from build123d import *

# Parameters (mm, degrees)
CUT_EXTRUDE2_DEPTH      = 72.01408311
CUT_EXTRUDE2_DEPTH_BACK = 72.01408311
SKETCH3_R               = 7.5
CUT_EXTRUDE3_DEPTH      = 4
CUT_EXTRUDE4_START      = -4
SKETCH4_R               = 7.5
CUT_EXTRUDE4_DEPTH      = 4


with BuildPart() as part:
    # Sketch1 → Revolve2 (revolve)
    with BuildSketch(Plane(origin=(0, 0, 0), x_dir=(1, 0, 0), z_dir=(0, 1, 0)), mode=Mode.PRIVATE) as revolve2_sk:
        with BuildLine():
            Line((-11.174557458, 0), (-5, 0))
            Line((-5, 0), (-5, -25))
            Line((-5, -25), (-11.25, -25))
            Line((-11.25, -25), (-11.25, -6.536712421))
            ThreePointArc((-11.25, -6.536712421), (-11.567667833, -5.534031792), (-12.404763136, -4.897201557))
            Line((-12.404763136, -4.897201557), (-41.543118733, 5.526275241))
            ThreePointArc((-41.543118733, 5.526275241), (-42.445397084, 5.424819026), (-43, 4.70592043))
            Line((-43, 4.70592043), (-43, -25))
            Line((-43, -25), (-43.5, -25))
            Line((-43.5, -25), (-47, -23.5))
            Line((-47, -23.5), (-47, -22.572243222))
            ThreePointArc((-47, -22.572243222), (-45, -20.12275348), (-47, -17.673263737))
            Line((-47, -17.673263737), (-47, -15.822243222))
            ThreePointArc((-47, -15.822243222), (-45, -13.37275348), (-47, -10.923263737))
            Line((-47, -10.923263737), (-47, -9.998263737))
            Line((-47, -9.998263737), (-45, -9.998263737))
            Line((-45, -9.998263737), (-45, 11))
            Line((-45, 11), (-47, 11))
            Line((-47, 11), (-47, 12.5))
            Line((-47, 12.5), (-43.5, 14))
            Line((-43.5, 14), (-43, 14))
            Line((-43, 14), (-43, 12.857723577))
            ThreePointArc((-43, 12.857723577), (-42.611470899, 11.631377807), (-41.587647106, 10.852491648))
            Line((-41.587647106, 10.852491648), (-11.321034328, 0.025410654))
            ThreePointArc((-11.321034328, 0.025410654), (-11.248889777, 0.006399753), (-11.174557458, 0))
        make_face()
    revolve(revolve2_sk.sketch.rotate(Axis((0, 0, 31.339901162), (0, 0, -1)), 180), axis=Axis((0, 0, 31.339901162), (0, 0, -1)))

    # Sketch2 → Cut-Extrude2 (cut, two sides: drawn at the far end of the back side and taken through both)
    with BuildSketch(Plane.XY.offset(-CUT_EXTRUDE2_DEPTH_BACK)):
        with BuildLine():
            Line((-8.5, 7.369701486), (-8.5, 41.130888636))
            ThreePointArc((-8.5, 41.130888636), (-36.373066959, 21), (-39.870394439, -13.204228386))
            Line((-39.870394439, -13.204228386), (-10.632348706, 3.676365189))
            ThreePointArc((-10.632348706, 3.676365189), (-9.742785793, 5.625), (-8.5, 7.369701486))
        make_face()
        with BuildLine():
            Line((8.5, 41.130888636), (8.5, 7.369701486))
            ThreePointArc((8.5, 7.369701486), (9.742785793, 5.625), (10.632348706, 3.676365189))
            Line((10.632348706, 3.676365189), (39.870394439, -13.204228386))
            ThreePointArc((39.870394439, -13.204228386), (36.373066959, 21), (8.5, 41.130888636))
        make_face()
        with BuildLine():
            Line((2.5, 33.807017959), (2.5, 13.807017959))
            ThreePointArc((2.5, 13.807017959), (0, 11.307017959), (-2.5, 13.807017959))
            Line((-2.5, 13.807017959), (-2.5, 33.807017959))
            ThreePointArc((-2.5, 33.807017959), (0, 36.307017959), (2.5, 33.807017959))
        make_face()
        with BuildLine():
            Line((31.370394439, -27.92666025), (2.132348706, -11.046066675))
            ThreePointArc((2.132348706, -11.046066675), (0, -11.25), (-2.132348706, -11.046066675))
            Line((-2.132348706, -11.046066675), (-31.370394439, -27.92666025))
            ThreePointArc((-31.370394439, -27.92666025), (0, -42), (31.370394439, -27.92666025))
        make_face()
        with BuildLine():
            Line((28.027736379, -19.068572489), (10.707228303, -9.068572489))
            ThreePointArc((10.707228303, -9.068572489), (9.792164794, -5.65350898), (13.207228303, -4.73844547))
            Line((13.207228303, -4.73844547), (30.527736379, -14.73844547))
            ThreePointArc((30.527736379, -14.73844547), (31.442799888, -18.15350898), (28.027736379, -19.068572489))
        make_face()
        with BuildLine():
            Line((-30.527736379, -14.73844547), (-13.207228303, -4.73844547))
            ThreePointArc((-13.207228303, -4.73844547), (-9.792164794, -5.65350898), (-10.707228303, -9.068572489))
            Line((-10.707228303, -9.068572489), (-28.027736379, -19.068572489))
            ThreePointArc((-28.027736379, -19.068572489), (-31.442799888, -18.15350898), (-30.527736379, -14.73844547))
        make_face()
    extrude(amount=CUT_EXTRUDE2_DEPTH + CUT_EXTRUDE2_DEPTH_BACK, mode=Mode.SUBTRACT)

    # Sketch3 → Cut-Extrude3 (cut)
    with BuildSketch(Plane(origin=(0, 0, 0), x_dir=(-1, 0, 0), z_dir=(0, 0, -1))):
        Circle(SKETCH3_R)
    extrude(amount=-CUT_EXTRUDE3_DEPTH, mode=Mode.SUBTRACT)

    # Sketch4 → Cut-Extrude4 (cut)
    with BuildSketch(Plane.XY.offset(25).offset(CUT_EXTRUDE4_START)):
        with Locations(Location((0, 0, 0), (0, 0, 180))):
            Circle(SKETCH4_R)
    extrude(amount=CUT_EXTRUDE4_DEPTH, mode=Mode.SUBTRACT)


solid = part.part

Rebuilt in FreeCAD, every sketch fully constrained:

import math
import FreeCAD as App
import Part
import Sketcher
from FreeCAD import Vector
Q = App.Units.Quantity

doc = App.newDocument("Part")
body = doc.addObject("PartDesign::Body", "Body")

sketch1 = body.newObject("Sketcher::SketchObject", "Sketch")
sketch1.AttachmentSupport = (doc.getObject("XZ_Plane"), [""])
sketch1.MapMode = "FlatFace"
sketch1.addGeometry(Part.LineSegment(Vector(-5, 0, 0), Vector(-11.174557, 0, 0)), False)
sketch1.addGeometry(Part.ArcOfCircle(Part.Circle(Vector(-11.174557, -0.43488, 0), Vector(0, 0, 1), 0.43488), math.radians(90), math.radians(109.683328)), False)
sketch1.addGeometry(Part.LineSegment(Vector(-11.321034, -0.025411, 0), Vector(-41.587647, -10.852492, 0)), False)
sketch1.addGeometry(Part.ArcOfCircle(Part.Circle(Vector(-40.870328, -12.857724, 0), Vector(0, 0, 1), 2.129672), math.radians(109.683328), math.radians(180)), False)
sketch1.addGeometry(Part.LineSegment(Vector(-43, -12.857724, 0), Vector(-43, -14, 0)), False)
sketch1.addGeometry(Part.LineSegment(Vector(-43, -14, 0), Vector(-43.5, -14, 0)), False)
sketch1.addGeometry(Part.LineSegment(Vector(-43.5, -14, 0), Vector(-47, -12.5, 0)), False)
sketch1.addGeometry(Part.LineSegment(Vector(-47, -12.5, 0), Vector(-47, -11, 0)), False)
sketch1.addGeometry(Part.LineSegment(Vector(-47, -11, 0), Vector(-45, -11, 0)), False)
sketch1.addGeometry(Part.LineSegment(Vector(-45, -11, 0), Vector(-45, 9.998264, 0)), False)
sketch1.addGeometry(Part.LineSegment(Vector(-45, 9.998264, 0), Vector(-47, 9.998264, 0)), False)
sketch1.addGeometry(Part.LineSegment(Vector(-47, 9.998264, 0), Vector(-47, 10.923264, 0)), False)
sketch1.addGeometry(Part.ArcOfCircle(Part.Circle(Vector(-47.5, 13.372753, 0), Vector(0, 0, 1), 2.5), math.radians(-78.463041), math.radians(78.463041)), False)
sketch1.addGeometry(Part.LineSegment(Vector(-47, 15.822243, 0), Vector(-47, 17.673264, 0)), False)
sketch1.addGeometry(Part.ArcOfCircle(Part.Circle(Vector(-47.5, 20.122753, 0), Vector(0, 0, 1), 2.5), math.radians(-78.463041), math.radians(78.463041)), False)
sketch1.addGeometry(Part.LineSegment(Vector(-47, 22.572243, 0), Vector(-47, 23.5, 0)), False)
sketch1.addGeometry(Part.LineSegment(Vector(-47, 23.5, 0), Vector(-43.5, 25, 0)), False)
sketch1.addGeometry(Part.LineSegment(Vector(-43.5, 25, 0), Vector(-43, 25, 0)), False)
sketch1.addGeometry(Part.LineSegment(Vector(-43, 25, 0), Vector(-43, -4.70592, 0)), False)
sketch1.addGeometry(Part.ArcOfCircle(Part.Circle(Vector(-41.874563, -4.411065, 0), Vector(0, 0, 1), 1.163421), math.radians(-165.318948), math.radians(-73.447878)), False)
sketch1.addGeometry(Part.LineSegment(Vector(-41.543119, -5.526275, 0), Vector(-12.404763, 4.897202, 0)), False)
sketch1.addGeometry(Part.ArcOfCircle(Part.Circle(Vector(-12.991255, 6.536712, 0), Vector(0, 0, 1), 1.741255), math.radians(-70.316672), math.radians(0)), False)
sketch1.addGeometry(Part.LineSegment(Vector(-11.25, 6.536712, 0), Vector(-11.25, 25, 0)), False)
sketch1.addGeometry(Part.LineSegment(Vector(-11.25, 25, 0), Vector(-5, 25, 0)), False)
sketch1.addGeometry(Part.LineSegment(Vector(-5, 25, 0), Vector(-5, 0, 0)), False)
sketch1.addConstraint(Sketcher.Constraint("Tangent", 0, 2, 1, 1))
sketch1.addConstraint(Sketcher.Constraint("Tangent", 1, 2, 2, 1))
sketch1.addConstraint(Sketcher.Constraint("Tangent", 2, 2, 3, 1))
sketch1.addConstraint(Sketcher.Constraint("Tangent", 3, 2, 4, 1))
sketch1.addConstraint(Sketcher.Constraint("Coincident", 4, 2, 5, 1))
sketch1.addConstraint(Sketcher.Constraint("Coincident", 5, 2, 6, 1))
sketch1.addConstraint(Sketcher.Constraint("Coincident", 6, 2, 7, 1))
sketch1.addConstraint(Sketcher.Constraint("Coincident", 7, 2, 8, 1))
sketch1.addConstraint(Sketcher.Constraint("Coincident", 8, 2, 9, 1))
sketch1.addConstraint(Sketcher.Constraint("Coincident", 9, 2, 10, 1))
sketch1.addConstraint(Sketcher.Constraint("Coincident", 10, 2, 11, 1))
sketch1.addConstraint(Sketcher.Constraint("Coincident", 11, 2, 12, 1))
sketch1.addConstraint(Sketcher.Constraint("Coincident", 12, 2, 13, 1))
sketch1.addConstraint(Sketcher.Constraint("Coincident", 13, 2, 14, 1))
sketch1.addConstraint(Sketcher.Constraint("Coincident", 14, 2, 15, 1))
sketch1.addConstraint(Sketcher.Constraint("Coincident", 15, 2, 16, 1))
sketch1.addConstraint(Sketcher.Constraint("Coincident", 16, 2, 17, 1))
sketch1.addConstraint(Sketcher.Constraint("Coincident", 17, 2, 18, 1))
sketch1.addConstraint(Sketcher.Constraint("Coincident", 18, 2, 19, 1))
sketch1.addConstraint(Sketcher.Constraint("Coincident", 19, 2, 20, 1))
sketch1.addConstraint(Sketcher.Constraint("Tangent", 20, 2, 21, 1))
sketch1.addConstraint(Sketcher.Constraint("Tangent", 21, 2, 22, 1))
sketch1.addConstraint(Sketcher.Constraint("Coincident", 22, 2, 23, 1))
sketch1.addConstraint(Sketcher.Constraint("Coincident", 23, 2, 24, 1))
sketch1.addConstraint(Sketcher.Constraint("Coincident", 24, 2, 0, 1))
sketch1.addConstraint(Sketcher.Constraint("Horizontal", 0))
sketch1.addConstraint(Sketcher.Constraint("Vertical", 4))
sketch1.addConstraint(Sketcher.Constraint("Horizontal", 5))
sketch1.addConstraint(Sketcher.Constraint("Vertical", 7))
sketch1.addConstraint(Sketcher.Constraint("Horizontal", 8))
sketch1.addConstraint(Sketcher.Constraint("Vertical", 9))
sketch1.addConstraint(Sketcher.Constraint("Horizontal", 10))
sketch1.addConstraint(Sketcher.Constraint("Vertical", 11))
sketch1.addConstraint(Sketcher.Constraint("Vertical", 13))
sketch1.addConstraint(Sketcher.Constraint("Vertical", 15))
sketch1.addConstraint(Sketcher.Constraint("Horizontal", 17))
sketch1.addConstraint(Sketcher.Constraint("Vertical", 18))
sketch1.addConstraint(Sketcher.Constraint("Vertical", 22))
sketch1.addConstraint(Sketcher.Constraint("Horizontal", 23))
sketch1.addConstraint(Sketcher.Constraint("Vertical", 24))
sketch1.addConstraint(Sketcher.Constraint("Equal", 12, 14))
sketch1.addConstraint(Sketcher.Constraint("PointOnObject", 0, 2, -1))
sketch1.addConstraint(Sketcher.Constraint("Parallel", 2, 20))
sketch1.addConstraint(Sketcher.Constraint("Horizontal", 17, 2, 22, 2))
sketch1.addConstraint(Sketcher.Constraint("Vertical", 12, 3, 14, 3))
sketch1.addConstraint(Sketcher.Constraint("Vertical", 7, 2, 10, 2))
sketch1.addConstraint(Sketcher.Constraint("Vertical", 11, 2, 12, 2))
sketch1.addConstraint(Sketcher.Constraint("Vertical", 13, 2, 14, 2))
sketch1.addConstraint(Sketcher.Constraint("Vertical", 5, 2, 16, 2))
sketch1.addConstraint(Sketcher.Constraint("Vertical", 4, 2, 17, 2))
sketch1.addConstraint(Sketcher.Constraint("Equal", 6, 16))
sketch1.addConstraint(Sketcher.Constraint("Radius", 12, 2.5))
sketch1.addConstraint(Sketcher.Constraint("DistanceX", 8, 1, 8, 2, 2.0))
sketch1.addConstraint(Sketcher.Constraint("DistanceY", 24, 2, 24, 1, 25.0))
sketch1.addConstraint(Sketcher.Constraint("DistanceX", 5, 2, 5, 1, 0.5))
sketch1.addConstraint(Sketcher.Constraint("DistanceY", 7, 1, 7, 2, 1.5))
sketch1.addConstraint(Sketcher.Constraint("DistanceX", 3, 2, -1, 1, 43.0))
sketch1.addConstraint(Sketcher.Constraint("DistanceY", 4, 2, -1, 1, 14.0))
sketch1.addConstraint(Sketcher.Constraint("DistanceX", 6, 2, -1, 1, 47.0))
sketch1.addConstraint(Sketcher.Constraint("DistanceY", 7, 2, -1, 1, 11.0))
sketch1.addConstraint(Sketcher.Constraint("DistanceX", 23, 2, -1, 1, 5.0))
sketch1.addConstraint(Sketcher.Constraint("DistanceX", 14, 3, 16, 2, 4.0))
sketch1.addConstraint(Sketcher.Constraint("DistanceX", 23, 1, 23, 2, 6.25))
sketch1.addConstraint(Sketcher.Constraint("DistanceY", 11, 1, 11, 2, 0.925))
sketch1.addConstraint(Sketcher.Constraint("Radius", 1, 0.43488))
sketch1.addConstraint(Sketcher.Constraint("Radius", 3, 2.129672))
sketch1.addConstraint(Sketcher.Constraint("Radius", 19, 1.163421))
sketch1.addConstraint(Sketcher.Constraint("DistanceY", 12, 3, 14, 3, 6.75))
sketch1.addConstraint(Sketcher.Constraint("Radius", 21, 1.741255))
sketch1.addConstraint(Sketcher.Constraint("DistanceY", 18, 2, 18, 1, 29.70592))
sketch1.addConstraint(Sketcher.Constraint("DistanceY", -1, 1, 20, 2, 4.897202))
sketch1.addConstraint(Sketcher.Constraint("DistanceX", 19, 3, 20, 2, 29.4698))
sketch1.addConstraint(Sketcher.Constraint("Distance", 20, 30.946609))
sketch1.addConstraint(Sketcher.Constraint("DistanceX", 0, 2, 0, 1, 6.174557))
sketch1.addConstraint(Sketcher.Constraint("DistanceY", 9, 1, 9, 2, 20.998264))
revolution = body.newObject("PartDesign::Revolution", "Revolution")
revolution.Profile = sketch1
revolution.ReferenceAxis = (sketch1, ["V_Axis"])
revolution.Angle = 360

sketch2 = body.newObject("Sketcher::SketchObject", "Sketch001")
sketch2.AttachmentSupport = (doc.getObject("XY_Plane"), [""])
sketch2.MapMode = "FlatFace"
sketch2.addGeometry(Part.LineSegment(Vector(-8.5, 7.369701, 0), Vector(-8.5, 41.130889, 0)), False)
sketch2.addGeometry(Part.ArcOfCircle(Part.Circle(Vector(0, 0, 0), Vector(0, 0, 1), 42), math.radians(101.676225), math.radians(198.323775)), False)
sketch2.addGeometry(Part.LineSegment(Vector(-39.870394, -13.204228, 0), Vector(-10.632349, 3.676365, 0)), False)
sketch2.addGeometry(Part.ArcOfCircle(Part.Circle(Vector(0, 0, 0), Vector(0, 0, 1), 11.25), math.radians(139.073937), math.radians(160.926063)), False)
sketch2.addGeometry(Part.LineSegment(Vector(8.5, 41.130889, 0), Vector(8.5, 7.369701, 0)), False)
sketch2.addGeometry(Part.ArcOfCircle(Part.Circle(Vector(0, 0, 0), Vector(0, 0, 1), 11.25), math.radians(19.073937), math.radians(40.926063)), False)
sketch2.addGeometry(Part.LineSegment(Vector(10.632349, 3.676365, 0), Vector(39.870394, -13.204228, 0)), False)
sketch2.addGeometry(Part.ArcOfCircle(Part.Circle(Vector(0, 0, 0), Vector(0, 0, 1), 42), math.radians(-18.323775), math.radians(78.323775)), False)
sketch2.addGeometry(Part.LineSegment(Vector(2.5, 13.807018, 0), Vector(2.5, 33.807018, 0)), False)
sketch2.addGeometry(Part.ArcOfCircle(Part.Circle(Vector(0, 33.807018, 0), Vector(0, 0, 1), 2.5), math.radians(0), math.radians(180)), False)
sketch2.addGeometry(Part.LineSegment(Vector(-2.5, 33.807018, 0), Vector(-2.5, 13.807018, 0)), False)
sketch2.addGeometry(Part.ArcOfCircle(Part.Circle(Vector(0, 13.807018, 0), Vector(0, 0, 1), 2.5), math.radians(180), math.radians(360)), False)
sketch2.addGeometry(Part.LineSegment(Vector(31.370394, -27.92666, 0), Vector(2.132349, -11.046067, 0)), False)
sketch2.addGeometry(Part.ArcOfCircle(Part.Circle(Vector(0, 0, 0), Vector(0, 0, 1), 11.25), math.radians(-100.926063), math.radians(-79.073937)), False)
sketch2.addGeometry(Part.LineSegment(Vector(-2.132349, -11.046067, 0), Vector(-31.370394, -27.92666, 0)), False)
sketch2.addGeometry(Part.ArcOfCircle(Part.Circle(Vector(0, 0, 0), Vector(0, 0, 1), 42), math.radians(-138.323775), math.radians(-41.676225)), False)
sketch2.addGeometry(Part.LineSegment(Vector(10.707228, -9.068572, 0), Vector(28.027736, -19.068572, 0)), False)
sketch2.addGeometry(Part.ArcOfCircle(Part.Circle(Vector(29.277736, -16.903509, 0), Vector(0, 0, 1), 2.5), math.radians(-120), math.radians(60)), False)
sketch2.addGeometry(Part.LineSegment(Vector(30.527736, -14.738445, 0), Vector(13.207228, -4.738445, 0)), False)
sketch2.addGeometry(Part.ArcOfCircle(Part.Circle(Vector(11.957228, -6.903509, 0), Vector(0, 0, 1), 2.5), math.radians(60), math.radians(240)), False)
sketch2.addGeometry(Part.LineSegment(Vector(-13.207228, -4.738445, 0), Vector(-30.527736, -14.738445, 0)), False)
sketch2.addGeometry(Part.ArcOfCircle(Part.Circle(Vector(-29.277736, -16.903509, 0), Vector(0, 0, 1), 2.5), math.radians(120), math.radians(300)), False)
sketch2.addGeometry(Part.LineSegment(Vector(-28.027736, -19.068572, 0), Vector(-10.707228, -9.068572, 0)), False)
sketch2.addGeometry(Part.ArcOfCircle(Part.Circle(Vector(-11.957228, -6.903509, 0), Vector(0, 0, 1), 2.5), math.radians(-60), math.radians(120)), False)
sketch2.addConstraint(Sketcher.Constraint("Coincident", 0, 2, 1, 1))
sketch2.addConstraint(Sketcher.Constraint("Coincident", 1, 2, 2, 1))
sketch2.addConstraint(Sketcher.Constraint("Coincident", 2, 2, 3, 2))
sketch2.addConstraint(Sketcher.Constraint("Coincident", 3, 1, 0, 1))
sketch2.addConstraint(Sketcher.Constraint("Coincident", 4, 2, 5, 2))
sketch2.addConstraint(Sketcher.Constraint("Coincident", 5, 1, 6, 1))
sketch2.addConstraint(Sketcher.Constraint("Coincident", 6, 2, 7, 1))
sketch2.addConstraint(Sketcher.Constraint("Coincident", 7, 2, 4, 1))
sketch2.addConstraint(Sketcher.Constraint("Tangent", 8, 2, 9, 1))
sketch2.addConstraint(Sketcher.Constraint("Tangent", 9, 2, 10, 1))
sketch2.addConstraint(Sketcher.Constraint("Tangent", 10, 2, 11, 1))
sketch2.addConstraint(Sketcher.Constraint("Tangent", 11, 2, 8, 1))
sketch2.addConstraint(Sketcher.Constraint("Coincident", 12, 2, 13, 2))
sketch2.addConstraint(Sketcher.Constraint("Coincident", 13, 1, 14, 1))
sketch2.addConstraint(Sketcher.Constraint("Coincident", 14, 2, 15, 1))
sketch2.addConstraint(Sketcher.Constraint("Coincident", 15, 2, 12, 1))
sketch2.addConstraint(Sketcher.Constraint("Tangent", 16, 2, 17, 1))
sketch2.addConstraint(Sketcher.Constraint("Tangent", 17, 2, 18, 1))
sketch2.addConstraint(Sketcher.Constraint("Tangent", 18, 2, 19, 1))
sketch2.addConstraint(Sketcher.Constraint("Tangent", 19, 2, 16, 1))
sketch2.addConstraint(Sketcher.Constraint("Tangent", 20, 2, 21, 1))
sketch2.addConstraint(Sketcher.Constraint("Tangent", 21, 2, 22, 1))
sketch2.addConstraint(Sketcher.Constraint("Tangent", 22, 2, 23, 1))
sketch2.addConstraint(Sketcher.Constraint("Tangent", 23, 2, 20, 1))
sketch2.addConstraint(Sketcher.Constraint("Vertical", 0))
sketch2.addConstraint(Sketcher.Constraint("Vertical", 4))
sketch2.addConstraint(Sketcher.Constraint("Vertical", 8))
sketch2.addConstraint(Sketcher.Constraint("Vertical", 10))
sketch2.addConstraint(Sketcher.Constraint("Coincident", 1, 3, -1, 1))
sketch2.addConstraint(Sketcher.Constraint("Coincident", 3, 3, -1, 1))
sketch2.addConstraint(Sketcher.Constraint("Coincident", 5, 3, -1, 1))
sketch2.addConstraint(Sketcher.Constraint("Coincident", 7, 3, -1, 1))
sketch2.addConstraint(Sketcher.Constraint("Coincident", 13, 3, -1, 1))
sketch2.addConstraint(Sketcher.Constraint("Coincident", 15, 3, -1, 1))
sketch2.addConstraint(Sketcher.Constraint("Equal", 3, 5))
sketch2.addConstraint(Sketcher.Constraint("Equal", 1, 7))
sketch2.addConstraint(Sketcher.Constraint("Equal", 5, 13))
sketch2.addConstraint(Sketcher.Constraint("Equal", 7, 15))
sketch2.addConstraint(Sketcher.Constraint("Equal", 11, 17))
sketch2.addConstraint(Sketcher.Constraint("Equal", 17, 19))
sketch2.addConstraint(Sketcher.Constraint("Equal", 19, 21))
sketch2.addConstraint(Sketcher.Constraint("Equal", 21, 23))
sketch2.addConstraint(Sketcher.Constraint("Symmetric", 17, 3, 21, 3, -2))
sketch2.addConstraint(Sketcher.Constraint("Symmetric", 19, 3, 23, 3, -2))
sketch2.addConstraint(Sketcher.Constraint("PointOnObject", 9, 3, -2))
sketch2.addConstraint(Sketcher.Constraint("Parallel", 6, 12))
sketch2.addConstraint(Sketcher.Constraint("Parallel", 2, 14))
sketch2.addConstraint(Sketcher.Constraint("Parallel", 12, 16))
sketch2.addConstraint(Sketcher.Constraint("Parallel", 14, 20))
sketch2.addConstraint(Sketcher.Constraint("Horizontal", 3, 1, 4, 2))
sketch2.addConstraint(Sketcher.Constraint("Horizontal", 2, 2, 5, 1))
sketch2.addConstraint(Sketcher.Constraint("Horizontal", 12, 2, 13, 1))
sketch2.addConstraint(Sketcher.Constraint("Equal", 6, 12))
sketch2.addConstraint(Sketcher.Constraint("Radius", 1, 42.0))
sketch2.addConstraint(Sketcher.Constraint("Radius", 9, 2.5))
sketch2.addConstraint(Sketcher.Constraint("DistanceY", 8, 1, 8, 2, 20.0))
sketch2.addConstraint(Sketcher.Constraint("Angle", 2, Q("30 deg")))
sketch2.addConstraint(Sketcher.Constraint("Radius", 3, 11.25))
sketch2.addConstraint(Sketcher.Constraint("Distance", 16, 20.0))
sketch2.addConstraint(Sketcher.Constraint("DistanceX", 0, 2, 7, 2, 17.0))
sketch2.addConstraint(Sketcher.Constraint("DistanceX", 1, 2, 14, 2, 8.5))
sketch2.addConstraint(Sketcher.Constraint("DistanceY", 17, 3, -1, 1, 16.903509))
sketch2.addConstraint(Sketcher.Constraint("DistanceX", -1, 1, 19, 3, 11.957228))
sketch2.addConstraint(Sketcher.Constraint("DistanceY", 9, 3, 0, 2, 7.323871))
pocket1 = body.newObject("PartDesign::Pocket", "Pocket")
pocket1.Profile = sketch2
pocket1.Type = "ThroughAll"
pocket1.Midplane = True

sketch3 = body.newObject("Sketcher::SketchObject", "Sketch002")
sketch3.AttachmentSupport = (doc.getObject("XY_Plane"), [""])
sketch3.MapMode = "FlatFace"
sketch3.addGeometry(Part.Circle(Vector(0, 0, 0), Vector(0, 0, 1), 7.5), False)
sketch3.addConstraint(Sketcher.Constraint("Coincident", 0, 3, -1, 1))
sketch3.addConstraint(Sketcher.Constraint("Diameter", 0, 15.0))
pocket2 = body.newObject("PartDesign::Pocket", "Pocket001")
pocket2.Profile = sketch3
pocket2.Length = 4
pocket2.Reversed = True

sketch4 = body.newObject("Sketcher::SketchObject", "Sketch003")
sketch4.AttachmentSupport = (doc.getObject("XY_Plane"), [""])
sketch4.MapMode = "FlatFace"
sketch4.AttachmentOffset = App.Placement(Vector(0, 0, 21), App.Rotation())
sketch4.addGeometry(Part.Circle(Vector(0, 0, 0), Vector(0, 0, 1), 7.5), False)
sketch4.addConstraint(Sketcher.Constraint("Coincident", 0, 3, -1, 1))
sketch4.addConstraint(Sketcher.Constraint("Diameter", 0, 15.0))
pocket3 = body.newObject("PartDesign::Pocket", "Pocket002")
pocket3.Profile = sketch4
pocket3.Length = 4
pocket3.Reversed = True

doc.recompute()
